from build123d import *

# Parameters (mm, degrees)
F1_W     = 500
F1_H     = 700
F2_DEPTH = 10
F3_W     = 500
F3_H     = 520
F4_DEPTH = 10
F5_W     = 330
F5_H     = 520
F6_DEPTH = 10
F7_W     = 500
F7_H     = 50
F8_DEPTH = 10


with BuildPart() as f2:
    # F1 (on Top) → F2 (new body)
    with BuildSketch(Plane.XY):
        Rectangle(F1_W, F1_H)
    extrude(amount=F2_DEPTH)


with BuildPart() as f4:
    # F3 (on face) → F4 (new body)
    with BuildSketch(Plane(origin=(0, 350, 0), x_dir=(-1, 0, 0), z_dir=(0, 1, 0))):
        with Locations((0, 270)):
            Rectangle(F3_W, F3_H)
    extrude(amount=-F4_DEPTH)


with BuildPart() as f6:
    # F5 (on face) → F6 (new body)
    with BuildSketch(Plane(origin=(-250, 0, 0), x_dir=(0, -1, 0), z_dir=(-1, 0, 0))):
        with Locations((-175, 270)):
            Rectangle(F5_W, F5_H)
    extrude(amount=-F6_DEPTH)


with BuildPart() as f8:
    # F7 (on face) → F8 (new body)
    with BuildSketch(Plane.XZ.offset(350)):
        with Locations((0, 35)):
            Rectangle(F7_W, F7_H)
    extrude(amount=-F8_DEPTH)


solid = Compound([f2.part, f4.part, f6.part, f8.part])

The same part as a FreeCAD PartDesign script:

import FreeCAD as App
import Part
import Sketcher
from FreeCAD import Vector

doc = App.newDocument("Part")
body = doc.addObject("PartDesign::Body", "Body")

# Sketch on XY plane
sketch1 = body.newObject("Sketcher::SketchObject", "Sketch")
sketch1.AttachmentSupport = (doc.getObject("XY_Plane"), [""])
sketch1.MapMode = "FlatFace"
sketch1.addGeometry(Part.LineSegment(Vector(-250, 350, 0), Vector(-250, -350, 0)), False)
sketch1.addGeometry(Part.LineSegment(Vector(-250, -350, 0), Vector(250, -350, 0)), False)
sketch1.addGeometry(Part.LineSegment(Vector(250, -350, 0), Vector(250, 350, 0)), False)
sketch1.addGeometry(Part.LineSegment(Vector(250, 350, 0), Vector(-250, 350, 0)), False)
sketch1.addConstraint(Sketcher.Constraint("Coincident", 0, 2, 1, 1))
sketch1.addConstraint(Sketcher.Constraint("Coincident", 1, 2, 2, 1))
sketch1.addConstraint(Sketcher.Constraint("Coincident", 2, 2, 3, 1))
sketch1.addConstraint(Sketcher.Constraint("Coincident", 3, 2, 0, 1))
sketch1.addConstraint(Sketcher.Constraint("Vertical", 0))
sketch1.addConstraint(Sketcher.Constraint("Horizontal", 1))
sketch1.addConstraint(Sketcher.Constraint("Vertical", 2))
sketch1.addConstraint(Sketcher.Constraint("Horizontal", 3))
sketch1.addConstraint(Sketcher.Constraint("Symmetric", 0, 2, 2, 2, -1, 1))
sketch1.addConstraint(Sketcher.Constraint("DistanceX", 1, 1, 1, 2, 500.0))
sketch1.addConstraint(Sketcher.Constraint("DistanceY", 0, 2, 0, 1, 700.0))
pad1 = body.newObject("PartDesign::Pad", "Pad")
pad1.Profile = sketch1
pad1.Length = 10
body2 = doc.addObject("PartDesign::Body", "Body001")

# Sketch on XZ plane
sketch2 = body2.newObject("Sketcher::SketchObject", "Sketch001")
sketch2.AttachmentSupport = (doc.getObject("XZ_Plane001"), [""])
sketch2.MapMode = "FlatFace"
sketch2.AttachmentOffset = App.Placement(Vector(0, 0, -350), App.Rotation())
sketch2.addGeometry(Part.LineSegment(Vector(250, 530, 0), Vector(250, 10, 0)), False)
sketch2.addGeometry(Part.LineSegment(Vector(250, 10, 0), Vector(-250, 10, 0)), False)
sketch2.addGeometry(Part.LineSegment(Vector(-250, 10, 0), Vector(-250, 530, 0)), False)
sketch2.addGeometry(Part.LineSegment(Vector(-250, 530, 0), Vector(250, 530, 0)), False)
sketch2.addConstraint(Sketcher.Constraint("Coincident", 0, 2, 1, 1))
sketch2.addConstraint(Sketcher.Constraint("Coincident", 1, 2, 2, 1))
sketch2.addConstraint(Sketcher.Constraint("Coincident", 2, 2, 3, 1))
sketch2.addConstraint(Sketcher.Constraint("Coincident", 3, 2, 0, 1))
sketch2.addConstraint(Sketcher.Constraint("Vertical", 0))
sketch2.addConstraint(Sketcher.Constraint("Horizontal", 1))
sketch2.addConstraint(Sketcher.Constraint("Vertical", 2))
sketch2.addConstraint(Sketcher.Constraint("Horizontal", 3))
sketch2.addConstraint(Sketcher.Constraint("DistanceX", 1, 2, 1, 1, 500.0))
sketch2.addConstraint(Sketcher.Constraint("DistanceY", 0, 2, 0, 1, 520.0))
sketch2.addConstraint(Sketcher.Constraint("DistanceX", -1, 1, 0, 2, 250.0))
sketch2.addConstraint(Sketcher.Constraint("DistanceY", -1, 1, 0, 2, 10.0))
pad2 = body2.newObject("PartDesign::Pad", "Pad001")
pad2.Profile = sketch2
pad2.Length = 10
body3 = doc.addObject("PartDesign::Body", "Body002")

# Sketch on YZ plane
sketch3 = body3.newObject("Sketcher::SketchObject", "Sketch002")
sketch3.AttachmentSupport = (doc.getObject("YZ_Plane002"), [""])
sketch3.MapMode = "FlatFace"
sketch3.AttachmentOffset = App.Placement(Vector(0, 0, -250), App.Rotation())
sketch3.addGeometry(Part.LineSegment(Vector(340, 530, 0), Vector(340, 10, 0)), False)
sketch3.addGeometry(Part.LineSegment(Vector(340, 10, 0), Vector(10, 10, 0)), False)
sketch3.addGeometry(Part.LineSegment(Vector(10, 10, 0), Vector(10, 530, 0)), False)
sketch3.addGeometry(Part.LineSegment(Vector(10, 530, 0), Vector(340, 530, 0)), False)
sketch3.addConstraint(Sketcher.Constraint("Coincident", 0, 2, 1, 1))
sketch3.addConstraint(Sketcher.Constraint("Coincident", 1, 2, 2, 1))
sketch3.addConstraint(Sketcher.Constraint("Coincident", 2, 2, 3, 1))
sketch3.addConstraint(Sketcher.Constraint("Coincident", 3, 2, 0, 1))
sketch3.addConstraint(Sketcher.Constraint("Vertical", 0))
sketch3.addConstraint(Sketcher.Constraint("Horizontal", 1))
sketch3.addConstraint(Sketcher.Constraint("Vertical", 2))
sketch3.addConstraint(Sketcher.Constraint("Horizontal", 3))
sketch3.addConstraint(Sketcher.Constraint("DistanceX", 1, 2, 1, 1, 330.0))
sketch3.addConstraint(Sketcher.Constraint("DistanceY", 0, 2, 0, 1, 520.0))
sketch3.addConstraint(Sketcher.Constraint("DistanceX", -1, 1, 0, 2, 340.0))
sketch3.addConstraint(Sketcher.Constraint("DistanceY", -1, 1, 0, 2, 10.0))
pad3 = body3.newObject("PartDesign::Pad", "Pad002")
pad3.Profile = sketch3
pad3.Length = 10
body4 = doc.addObject("PartDesign::Body", "Body003")

# Sketch on XZ plane
sketch4 = body4.newObject("Sketcher::SketchObject", "Sketch003")
sketch4.AttachmentSupport = (doc.getObject("XZ_Plane003"), [""])
sketch4.MapMode = "FlatFace"
sketch4.AttachmentOffset = App.Placement(Vector(0, 0, 350), App.Rotation())
sketch4.addGeometry(Part.LineSegment(Vector(-250, 60, 0), Vector(-250, 10, 0)), False)
sketch4.addGeometry(Part.LineSegment(Vector(-250, 10, 0), Vector(250, 10, 0)), False)
sketch4.addGeometry(Part.LineSegment(Vector(250, 10, 0), Vector(250, 60, 0)), False)
sketch4.addGeometry(Part.LineSegment(Vector(250, 60, 0), Vector(-250, 60, 0)), False)
sketch4.addConstraint(Sketcher.Constraint("Coincident", 0, 2, 1, 1))
sketch4.addConstraint(Sketcher.Constraint("Coincident", 1, 2, 2, 1))
sketch4.addConstraint(Sketcher.Constraint("Coincident", 2, 2, 3, 1))
sketch4.addConstraint(Sketcher.Constraint("Coincident", 3, 2, 0, 1))
sketch4.addConstraint(Sketcher.Constraint("Vertical", 0))
sketch4.addConstraint(Sketcher.Constraint("Horizontal", 1))
sketch4.addConstraint(Sketcher.Constraint("Vertical", 2))
sketch4.addConstraint(Sketcher.Constraint("Horizontal", 3))
sketch4.addConstraint(Sketcher.Constraint("DistanceX", 1, 1, 1, 2, 500.0))
sketch4.addConstraint(Sketcher.Constraint("DistanceY", 0, 2, 0, 1, 50.0))
sketch4.addConstraint(Sketcher.Constraint("DistanceX", 0, 2, -1, 1, 250.0))
sketch4.addConstraint(Sketcher.Constraint("DistanceY", -1, 1, 0, 2, 10.0))
pad4 = body4.newObject("PartDesign::Pad", "Pad003")
pad4.Profile = sketch4
pad4.Length = 10
pad4.Reversed = True

doc.recompute()
